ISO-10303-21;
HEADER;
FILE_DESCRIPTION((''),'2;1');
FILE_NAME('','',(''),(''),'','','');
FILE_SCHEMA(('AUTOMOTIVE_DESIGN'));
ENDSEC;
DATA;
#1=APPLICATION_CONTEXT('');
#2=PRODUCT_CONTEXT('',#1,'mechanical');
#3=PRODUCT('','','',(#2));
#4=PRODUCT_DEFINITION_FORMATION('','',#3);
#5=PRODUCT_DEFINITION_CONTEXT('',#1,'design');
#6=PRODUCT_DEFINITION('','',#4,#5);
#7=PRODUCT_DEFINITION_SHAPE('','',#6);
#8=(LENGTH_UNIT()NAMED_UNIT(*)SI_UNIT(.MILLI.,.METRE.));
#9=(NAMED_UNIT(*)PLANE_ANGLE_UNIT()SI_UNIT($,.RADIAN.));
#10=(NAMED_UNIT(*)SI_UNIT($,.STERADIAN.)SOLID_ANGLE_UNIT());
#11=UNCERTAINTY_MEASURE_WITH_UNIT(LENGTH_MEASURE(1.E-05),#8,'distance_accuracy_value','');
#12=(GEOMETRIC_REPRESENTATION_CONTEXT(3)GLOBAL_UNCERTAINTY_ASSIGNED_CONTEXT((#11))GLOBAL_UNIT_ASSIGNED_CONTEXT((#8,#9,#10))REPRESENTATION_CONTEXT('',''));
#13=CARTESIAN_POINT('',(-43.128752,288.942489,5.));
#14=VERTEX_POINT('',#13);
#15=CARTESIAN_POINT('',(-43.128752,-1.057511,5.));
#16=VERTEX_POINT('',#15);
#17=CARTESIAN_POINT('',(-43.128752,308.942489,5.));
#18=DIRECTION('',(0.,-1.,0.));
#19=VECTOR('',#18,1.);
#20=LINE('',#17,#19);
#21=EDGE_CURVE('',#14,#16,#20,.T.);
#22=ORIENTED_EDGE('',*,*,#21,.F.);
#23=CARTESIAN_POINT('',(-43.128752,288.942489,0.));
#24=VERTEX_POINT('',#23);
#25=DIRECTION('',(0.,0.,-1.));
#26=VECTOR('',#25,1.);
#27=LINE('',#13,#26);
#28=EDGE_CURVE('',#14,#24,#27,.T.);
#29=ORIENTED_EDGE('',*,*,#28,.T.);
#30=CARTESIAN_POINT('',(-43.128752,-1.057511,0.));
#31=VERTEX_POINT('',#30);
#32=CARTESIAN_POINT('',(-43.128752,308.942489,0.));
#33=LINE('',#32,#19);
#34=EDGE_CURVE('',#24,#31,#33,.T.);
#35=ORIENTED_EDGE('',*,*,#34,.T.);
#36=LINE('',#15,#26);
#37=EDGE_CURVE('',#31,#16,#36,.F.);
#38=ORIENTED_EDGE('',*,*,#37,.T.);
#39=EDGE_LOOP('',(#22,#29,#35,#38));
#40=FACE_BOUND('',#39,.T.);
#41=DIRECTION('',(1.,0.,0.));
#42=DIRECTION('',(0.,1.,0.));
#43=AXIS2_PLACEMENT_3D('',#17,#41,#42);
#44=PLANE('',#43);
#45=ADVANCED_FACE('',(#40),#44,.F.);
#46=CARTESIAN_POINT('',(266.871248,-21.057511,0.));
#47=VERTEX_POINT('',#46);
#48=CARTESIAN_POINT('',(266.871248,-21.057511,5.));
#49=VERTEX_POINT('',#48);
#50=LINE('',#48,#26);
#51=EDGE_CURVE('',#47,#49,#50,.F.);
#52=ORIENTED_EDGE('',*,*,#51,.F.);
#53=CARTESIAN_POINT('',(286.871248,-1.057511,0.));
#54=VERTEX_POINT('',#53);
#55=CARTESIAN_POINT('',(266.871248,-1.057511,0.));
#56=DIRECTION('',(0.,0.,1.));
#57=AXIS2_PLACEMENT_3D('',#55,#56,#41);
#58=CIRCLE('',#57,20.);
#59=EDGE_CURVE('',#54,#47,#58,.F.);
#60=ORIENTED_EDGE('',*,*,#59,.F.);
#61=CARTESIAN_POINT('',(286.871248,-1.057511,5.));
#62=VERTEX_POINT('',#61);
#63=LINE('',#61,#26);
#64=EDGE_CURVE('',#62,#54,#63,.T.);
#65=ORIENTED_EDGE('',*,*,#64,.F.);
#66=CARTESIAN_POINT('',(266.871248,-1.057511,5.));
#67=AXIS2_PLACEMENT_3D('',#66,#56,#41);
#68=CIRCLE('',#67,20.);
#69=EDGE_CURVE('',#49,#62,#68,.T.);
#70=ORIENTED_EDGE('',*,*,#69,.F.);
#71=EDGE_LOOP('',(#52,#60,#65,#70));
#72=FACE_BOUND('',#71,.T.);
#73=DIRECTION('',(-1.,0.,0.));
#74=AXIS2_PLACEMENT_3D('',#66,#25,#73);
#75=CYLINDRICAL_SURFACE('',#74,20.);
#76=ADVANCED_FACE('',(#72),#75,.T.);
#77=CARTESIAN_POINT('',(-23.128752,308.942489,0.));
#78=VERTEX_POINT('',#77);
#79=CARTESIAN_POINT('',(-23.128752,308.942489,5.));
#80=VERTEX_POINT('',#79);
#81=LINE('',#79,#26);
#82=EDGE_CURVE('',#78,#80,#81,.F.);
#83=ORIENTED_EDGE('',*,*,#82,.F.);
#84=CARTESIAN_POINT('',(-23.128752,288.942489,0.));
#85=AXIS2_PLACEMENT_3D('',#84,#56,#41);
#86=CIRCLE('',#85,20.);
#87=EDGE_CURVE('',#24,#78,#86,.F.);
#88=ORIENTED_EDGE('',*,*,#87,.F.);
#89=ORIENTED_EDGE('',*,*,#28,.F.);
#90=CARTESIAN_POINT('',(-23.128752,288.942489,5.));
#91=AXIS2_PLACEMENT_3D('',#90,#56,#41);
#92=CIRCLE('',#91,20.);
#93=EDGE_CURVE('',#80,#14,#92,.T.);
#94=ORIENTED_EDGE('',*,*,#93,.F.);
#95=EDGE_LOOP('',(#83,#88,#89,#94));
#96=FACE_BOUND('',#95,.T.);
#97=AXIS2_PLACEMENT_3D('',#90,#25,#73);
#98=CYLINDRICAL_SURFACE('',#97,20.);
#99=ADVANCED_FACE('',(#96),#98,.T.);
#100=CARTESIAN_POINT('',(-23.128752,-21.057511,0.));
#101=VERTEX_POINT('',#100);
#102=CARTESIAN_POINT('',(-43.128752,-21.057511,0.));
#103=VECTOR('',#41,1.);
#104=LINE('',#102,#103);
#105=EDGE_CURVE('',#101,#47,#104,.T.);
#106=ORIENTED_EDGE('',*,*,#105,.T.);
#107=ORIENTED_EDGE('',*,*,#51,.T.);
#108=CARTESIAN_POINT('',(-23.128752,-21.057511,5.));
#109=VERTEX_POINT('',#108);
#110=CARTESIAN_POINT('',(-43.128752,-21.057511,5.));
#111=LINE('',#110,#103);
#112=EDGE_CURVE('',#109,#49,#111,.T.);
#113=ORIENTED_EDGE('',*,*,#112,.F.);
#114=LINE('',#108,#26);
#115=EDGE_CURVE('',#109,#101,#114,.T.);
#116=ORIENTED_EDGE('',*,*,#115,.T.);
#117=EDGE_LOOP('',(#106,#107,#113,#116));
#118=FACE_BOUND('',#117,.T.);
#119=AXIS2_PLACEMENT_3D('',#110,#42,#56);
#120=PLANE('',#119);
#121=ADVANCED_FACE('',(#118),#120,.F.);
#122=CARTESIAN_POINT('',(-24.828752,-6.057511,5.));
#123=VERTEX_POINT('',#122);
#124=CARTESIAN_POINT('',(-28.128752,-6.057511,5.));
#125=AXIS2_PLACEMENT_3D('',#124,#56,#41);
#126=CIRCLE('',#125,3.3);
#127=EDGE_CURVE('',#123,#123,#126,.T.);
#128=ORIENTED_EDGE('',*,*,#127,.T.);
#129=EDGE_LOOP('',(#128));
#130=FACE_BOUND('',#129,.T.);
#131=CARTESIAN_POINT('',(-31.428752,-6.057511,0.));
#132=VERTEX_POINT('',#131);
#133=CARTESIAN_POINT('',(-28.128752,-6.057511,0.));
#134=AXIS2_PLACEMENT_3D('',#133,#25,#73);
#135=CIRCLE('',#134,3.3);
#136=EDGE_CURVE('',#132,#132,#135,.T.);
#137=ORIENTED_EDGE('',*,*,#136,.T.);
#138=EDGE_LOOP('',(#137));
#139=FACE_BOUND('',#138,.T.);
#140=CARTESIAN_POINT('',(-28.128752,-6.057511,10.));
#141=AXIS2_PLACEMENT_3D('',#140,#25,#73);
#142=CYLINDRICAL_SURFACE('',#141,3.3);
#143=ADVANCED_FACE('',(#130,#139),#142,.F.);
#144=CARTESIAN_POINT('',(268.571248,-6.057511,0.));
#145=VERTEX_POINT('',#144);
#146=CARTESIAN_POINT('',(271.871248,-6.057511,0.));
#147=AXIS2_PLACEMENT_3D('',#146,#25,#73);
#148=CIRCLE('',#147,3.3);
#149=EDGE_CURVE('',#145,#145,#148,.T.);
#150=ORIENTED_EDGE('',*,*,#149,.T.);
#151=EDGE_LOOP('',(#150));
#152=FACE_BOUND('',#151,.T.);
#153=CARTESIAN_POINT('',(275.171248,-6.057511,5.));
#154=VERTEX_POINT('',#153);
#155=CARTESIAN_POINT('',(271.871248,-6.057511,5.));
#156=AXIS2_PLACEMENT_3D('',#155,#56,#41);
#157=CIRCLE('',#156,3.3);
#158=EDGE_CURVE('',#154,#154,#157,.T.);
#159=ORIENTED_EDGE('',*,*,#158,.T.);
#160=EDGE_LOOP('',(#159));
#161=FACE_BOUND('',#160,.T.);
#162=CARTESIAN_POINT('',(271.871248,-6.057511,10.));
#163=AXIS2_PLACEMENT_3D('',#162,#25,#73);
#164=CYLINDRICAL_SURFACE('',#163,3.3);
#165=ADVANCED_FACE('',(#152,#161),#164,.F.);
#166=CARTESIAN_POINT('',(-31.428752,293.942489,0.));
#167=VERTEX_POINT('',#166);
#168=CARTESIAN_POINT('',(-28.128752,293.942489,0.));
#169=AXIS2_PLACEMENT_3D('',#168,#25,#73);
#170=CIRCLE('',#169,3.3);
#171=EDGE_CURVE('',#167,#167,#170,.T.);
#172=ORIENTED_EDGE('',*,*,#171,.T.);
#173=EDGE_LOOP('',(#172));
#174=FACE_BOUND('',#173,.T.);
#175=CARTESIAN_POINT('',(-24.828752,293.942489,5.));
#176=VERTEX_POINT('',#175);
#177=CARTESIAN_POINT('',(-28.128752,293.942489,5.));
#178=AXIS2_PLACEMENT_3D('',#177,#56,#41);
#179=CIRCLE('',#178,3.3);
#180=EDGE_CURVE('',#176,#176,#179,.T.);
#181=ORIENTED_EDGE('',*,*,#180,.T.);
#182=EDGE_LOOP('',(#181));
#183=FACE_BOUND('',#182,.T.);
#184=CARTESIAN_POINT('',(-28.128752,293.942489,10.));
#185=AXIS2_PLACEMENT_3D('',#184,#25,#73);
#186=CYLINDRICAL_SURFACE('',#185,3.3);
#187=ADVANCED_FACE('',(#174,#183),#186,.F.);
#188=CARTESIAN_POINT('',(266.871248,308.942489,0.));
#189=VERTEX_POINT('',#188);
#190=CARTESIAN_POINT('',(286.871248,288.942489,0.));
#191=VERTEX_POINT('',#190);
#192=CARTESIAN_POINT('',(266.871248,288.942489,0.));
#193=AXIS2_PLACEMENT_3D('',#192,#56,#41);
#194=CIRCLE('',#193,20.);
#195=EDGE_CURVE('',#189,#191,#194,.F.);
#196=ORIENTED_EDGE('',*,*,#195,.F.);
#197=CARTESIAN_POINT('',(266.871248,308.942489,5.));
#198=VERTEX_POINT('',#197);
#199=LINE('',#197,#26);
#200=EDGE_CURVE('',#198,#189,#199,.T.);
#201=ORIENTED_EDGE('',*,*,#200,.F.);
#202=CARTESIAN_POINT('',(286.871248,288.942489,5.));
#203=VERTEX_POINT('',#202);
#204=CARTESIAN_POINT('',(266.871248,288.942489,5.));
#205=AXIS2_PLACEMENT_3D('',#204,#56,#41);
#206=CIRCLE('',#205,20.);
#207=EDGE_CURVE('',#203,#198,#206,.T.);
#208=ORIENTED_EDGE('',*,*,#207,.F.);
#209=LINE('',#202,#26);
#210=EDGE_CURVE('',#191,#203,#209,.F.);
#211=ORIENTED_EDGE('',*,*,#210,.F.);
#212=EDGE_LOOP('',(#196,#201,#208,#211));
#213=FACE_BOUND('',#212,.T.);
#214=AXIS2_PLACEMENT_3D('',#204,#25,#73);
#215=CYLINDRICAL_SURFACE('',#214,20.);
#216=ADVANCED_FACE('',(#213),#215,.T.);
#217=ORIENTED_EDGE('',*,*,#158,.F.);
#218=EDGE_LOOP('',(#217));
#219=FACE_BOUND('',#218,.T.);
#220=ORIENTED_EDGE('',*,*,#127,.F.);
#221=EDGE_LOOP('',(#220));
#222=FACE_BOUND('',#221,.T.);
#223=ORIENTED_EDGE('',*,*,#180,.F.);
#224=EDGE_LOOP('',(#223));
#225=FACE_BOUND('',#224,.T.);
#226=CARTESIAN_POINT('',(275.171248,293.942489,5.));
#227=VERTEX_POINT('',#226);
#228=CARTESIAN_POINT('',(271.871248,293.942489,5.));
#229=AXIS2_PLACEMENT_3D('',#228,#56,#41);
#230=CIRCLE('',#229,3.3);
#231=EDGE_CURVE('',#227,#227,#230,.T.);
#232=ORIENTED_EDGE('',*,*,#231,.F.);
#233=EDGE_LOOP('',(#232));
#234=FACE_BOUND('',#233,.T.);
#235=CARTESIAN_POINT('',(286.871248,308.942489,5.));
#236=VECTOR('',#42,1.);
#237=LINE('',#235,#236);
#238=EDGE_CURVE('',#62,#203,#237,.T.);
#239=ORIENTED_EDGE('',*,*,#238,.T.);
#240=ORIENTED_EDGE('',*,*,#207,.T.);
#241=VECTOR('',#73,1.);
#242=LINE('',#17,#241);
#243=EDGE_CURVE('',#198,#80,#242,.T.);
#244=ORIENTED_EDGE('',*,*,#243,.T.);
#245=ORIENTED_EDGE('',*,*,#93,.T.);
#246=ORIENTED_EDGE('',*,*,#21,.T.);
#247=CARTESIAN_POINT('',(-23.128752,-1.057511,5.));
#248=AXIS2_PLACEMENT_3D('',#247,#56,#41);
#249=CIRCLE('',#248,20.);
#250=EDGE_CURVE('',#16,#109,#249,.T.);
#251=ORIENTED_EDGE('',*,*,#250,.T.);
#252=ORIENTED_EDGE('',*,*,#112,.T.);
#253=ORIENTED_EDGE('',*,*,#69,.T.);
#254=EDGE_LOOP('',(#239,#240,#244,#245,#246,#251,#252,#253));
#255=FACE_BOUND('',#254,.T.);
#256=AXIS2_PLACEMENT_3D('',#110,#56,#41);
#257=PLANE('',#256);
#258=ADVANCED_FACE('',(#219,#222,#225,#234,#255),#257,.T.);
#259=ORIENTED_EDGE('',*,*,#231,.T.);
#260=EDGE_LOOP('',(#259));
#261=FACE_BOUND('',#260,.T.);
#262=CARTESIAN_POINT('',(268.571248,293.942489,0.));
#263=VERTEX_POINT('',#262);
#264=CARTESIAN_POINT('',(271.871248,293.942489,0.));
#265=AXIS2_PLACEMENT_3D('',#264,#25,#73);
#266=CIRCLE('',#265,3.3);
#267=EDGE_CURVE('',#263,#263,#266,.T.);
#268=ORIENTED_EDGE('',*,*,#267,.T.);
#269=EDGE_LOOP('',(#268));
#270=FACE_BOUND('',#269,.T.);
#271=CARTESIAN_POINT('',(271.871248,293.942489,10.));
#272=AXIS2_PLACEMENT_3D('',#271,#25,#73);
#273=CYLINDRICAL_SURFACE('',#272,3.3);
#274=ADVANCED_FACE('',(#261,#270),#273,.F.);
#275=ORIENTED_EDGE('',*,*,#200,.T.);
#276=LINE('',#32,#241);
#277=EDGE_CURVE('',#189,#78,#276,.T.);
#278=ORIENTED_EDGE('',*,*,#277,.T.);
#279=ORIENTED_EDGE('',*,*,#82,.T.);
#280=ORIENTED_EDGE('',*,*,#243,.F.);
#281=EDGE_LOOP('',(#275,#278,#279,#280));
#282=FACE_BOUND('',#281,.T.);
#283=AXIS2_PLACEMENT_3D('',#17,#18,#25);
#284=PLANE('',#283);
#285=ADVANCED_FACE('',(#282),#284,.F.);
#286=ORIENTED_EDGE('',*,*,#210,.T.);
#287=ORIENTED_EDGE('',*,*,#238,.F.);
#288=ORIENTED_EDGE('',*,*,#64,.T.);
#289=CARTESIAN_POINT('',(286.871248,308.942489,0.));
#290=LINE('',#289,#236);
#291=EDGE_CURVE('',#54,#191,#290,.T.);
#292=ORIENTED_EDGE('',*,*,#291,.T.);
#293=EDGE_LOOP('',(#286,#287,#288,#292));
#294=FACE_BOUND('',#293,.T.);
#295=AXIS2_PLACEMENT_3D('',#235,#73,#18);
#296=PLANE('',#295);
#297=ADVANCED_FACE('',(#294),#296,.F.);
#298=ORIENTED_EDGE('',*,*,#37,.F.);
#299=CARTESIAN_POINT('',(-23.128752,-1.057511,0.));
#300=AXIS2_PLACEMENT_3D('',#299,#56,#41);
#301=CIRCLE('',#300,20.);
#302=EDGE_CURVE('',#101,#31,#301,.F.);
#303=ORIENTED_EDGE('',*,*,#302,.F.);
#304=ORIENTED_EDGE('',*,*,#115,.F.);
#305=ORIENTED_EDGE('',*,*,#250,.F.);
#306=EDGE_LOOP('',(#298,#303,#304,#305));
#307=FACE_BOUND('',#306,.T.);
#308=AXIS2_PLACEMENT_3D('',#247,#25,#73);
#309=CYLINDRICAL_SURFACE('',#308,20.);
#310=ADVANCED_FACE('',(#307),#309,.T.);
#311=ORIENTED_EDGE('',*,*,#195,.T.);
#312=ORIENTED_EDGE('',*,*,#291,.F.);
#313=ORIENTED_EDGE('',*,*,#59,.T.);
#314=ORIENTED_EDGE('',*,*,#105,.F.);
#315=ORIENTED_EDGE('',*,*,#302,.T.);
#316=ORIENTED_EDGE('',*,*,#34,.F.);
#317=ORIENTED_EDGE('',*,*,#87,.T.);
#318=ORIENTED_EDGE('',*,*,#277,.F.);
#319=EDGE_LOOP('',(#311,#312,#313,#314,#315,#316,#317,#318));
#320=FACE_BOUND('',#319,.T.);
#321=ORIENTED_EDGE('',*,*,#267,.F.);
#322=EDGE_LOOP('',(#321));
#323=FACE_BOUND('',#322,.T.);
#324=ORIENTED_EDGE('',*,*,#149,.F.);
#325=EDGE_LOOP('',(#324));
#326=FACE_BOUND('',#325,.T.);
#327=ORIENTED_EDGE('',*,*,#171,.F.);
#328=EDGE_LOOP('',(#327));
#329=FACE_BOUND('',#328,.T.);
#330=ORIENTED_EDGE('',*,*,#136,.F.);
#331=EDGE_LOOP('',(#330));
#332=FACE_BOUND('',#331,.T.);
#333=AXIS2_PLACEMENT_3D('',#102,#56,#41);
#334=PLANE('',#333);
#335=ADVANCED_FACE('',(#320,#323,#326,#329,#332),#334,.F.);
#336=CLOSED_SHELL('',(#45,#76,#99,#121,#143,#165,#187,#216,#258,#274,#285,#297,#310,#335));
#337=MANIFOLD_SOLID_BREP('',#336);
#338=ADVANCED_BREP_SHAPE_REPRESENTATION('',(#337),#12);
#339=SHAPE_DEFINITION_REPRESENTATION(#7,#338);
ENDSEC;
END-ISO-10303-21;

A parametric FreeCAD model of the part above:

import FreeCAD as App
import Part
import Sketcher

V = App.Vector


def edges_at(feature, points):
    """Names of the edges that pass closest to the given points."""
    edges = feature.Shape.Edges
    near = lambda p: min(range(len(edges)), key=lambda i: edges[i].distToShape(Part.Vertex(*p))[0])
    return sorted({f"Edge{near(p) + 1}" for p in points})

doc = App.newDocument("Part")
body = doc.addObject("PartDesign::Body", "Body")

sketch1 = body.newObject("Sketcher::SketchObject", "Sketch")
sketch1.AttachmentSupport = (doc.getObject("XY_Plane"), [""])
sketch1.MapMode = "FlatFace"
sketch1.addGeometry(Part.LineSegment(V(-43, 309, 0), V(-43, -21, 0)), False)
sketch1.addGeometry(Part.LineSegment(V(-43, -21, 0), V(287, -21, 0)), False)
sketch1.addGeometry(Part.LineSegment(V(287, -21, 0), V(287, 309, 0)), False)
sketch1.addGeometry(Part.LineSegment(V(287, 309, 0), V(-43, 309, 0)), False)
sketch1.addConstraint(Sketcher.Constraint("Coincident", 0, 2, 1, 1))
sketch1.addConstraint(Sketcher.Constraint("Coincident", 1, 2, 2, 1))
sketch1.addConstraint(Sketcher.Constraint("Coincident", 2, 2, 3, 1))
sketch1.addConstraint(Sketcher.Constraint("Coincident", 3, 2, 0, 1))
sketch1.addConstraint(Sketcher.Constraint("Vertical", 0))
sketch1.addConstraint(Sketcher.Constraint("Horizontal", 1))
sketch1.addConstraint(Sketcher.Constraint("Vertical", 2))
sketch1.addConstraint(Sketcher.Constraint("Horizontal", 3))
sketch1.addConstraint(Sketcher.Constraint("Equal", 3, 0))
sketch1.addConstraint(Sketcher.Constraint("DistanceX", 1, 1, 1, 2, 330.0))
sketch1.addConstraint(Sketcher.Constraint("DistanceY", 0, 2, -1, 1, 21.057511))
sketch1.addConstraint(Sketcher.Constraint("DistanceX", 0, 2, -1, 1, 43.128752))
pad1 = body.newObject("PartDesign::Pad", "Pad")
pad1.Profile = sketch1
pad1.Length = 5
doc.recompute()

fillet = body.newObject("PartDesign::Fillet", "Fillet")
fillet.Base = (pad1, edges_at(pad1, [
    (-43.129, 308.942, 2.5),
    (286.871, 308.942, 2.5),
    (286.871, -21.058, 2.5),
    (-43.129, -21.058, 2.5),
]))
fillet.Radius = 20

sketch2 = body.newObject("Sketcher::SketchObject", "Sketch001")
sketch2.AttachmentSupport = (doc.getObject("XY_Plane"), [""])
sketch2.MapMode = "FlatFace"
sketch2.addGeometry(Part.Circle(V(-28.1, -6.1, 0), V(0, 0, 1), 3.3), False)
sketch2.addGeometry(Part.Circle(V(271.9, -6.1, 0), V(0, 0, 1), 3.3), False)
sketch2.addGeometry(Part.Circle(V(271.9, 293.9, 0), V(0, 0, 1), 3.3), False)
sketch2.addGeometry(Part.Circle(V(-28.1, 293.9, 0), V(0, 0, 1), 3.3), False)
sketch2.addConstraint(Sketcher.Constraint("Equal", 0, 1))
sketch2.addConstraint(Sketcher.Constraint("Equal", 1, 2))
sketch2.addConstraint(Sketcher.Constraint("Equal", 2, 3))
sketch2.addConstraint(Sketcher.Constraint("Horizontal", 0, 3, 1, 3))
sketch2.addConstraint(Sketcher.Constraint("Horizontal", 2, 3, 3, 3))
sketch2.addConstraint(Sketcher.Constraint("Vertical", 1, 3, 2, 3))
sketch2.addConstraint(Sketcher.Constraint("Vertical", 0, 3, 3, 3))
sketch2.addConstraint(Sketcher.Constraint("Diameter", 0, 6.6))
sketch2.addConstraint(Sketcher.Constraint("DistanceX", 0, 3, 1, 3, 300.0))
sketch2.addConstraint(Sketcher.Constraint("DistanceY", 1, 3, 2, 3, 300.0))
sketch2.addConstraint(Sketcher.Constraint("DistanceY", 0, 3, -1, 1, 6.057511))
sketch2.addConstraint(Sketcher.Constraint("DistanceX", 0, 3, -1, 1, 28.128752))
pocket1 = body.newObject("PartDesign::Pocket", "Pocket")
pocket1.Profile = sketch2
pocket1.Length = 10
pocket1.Reversed = True

doc.recompute()
